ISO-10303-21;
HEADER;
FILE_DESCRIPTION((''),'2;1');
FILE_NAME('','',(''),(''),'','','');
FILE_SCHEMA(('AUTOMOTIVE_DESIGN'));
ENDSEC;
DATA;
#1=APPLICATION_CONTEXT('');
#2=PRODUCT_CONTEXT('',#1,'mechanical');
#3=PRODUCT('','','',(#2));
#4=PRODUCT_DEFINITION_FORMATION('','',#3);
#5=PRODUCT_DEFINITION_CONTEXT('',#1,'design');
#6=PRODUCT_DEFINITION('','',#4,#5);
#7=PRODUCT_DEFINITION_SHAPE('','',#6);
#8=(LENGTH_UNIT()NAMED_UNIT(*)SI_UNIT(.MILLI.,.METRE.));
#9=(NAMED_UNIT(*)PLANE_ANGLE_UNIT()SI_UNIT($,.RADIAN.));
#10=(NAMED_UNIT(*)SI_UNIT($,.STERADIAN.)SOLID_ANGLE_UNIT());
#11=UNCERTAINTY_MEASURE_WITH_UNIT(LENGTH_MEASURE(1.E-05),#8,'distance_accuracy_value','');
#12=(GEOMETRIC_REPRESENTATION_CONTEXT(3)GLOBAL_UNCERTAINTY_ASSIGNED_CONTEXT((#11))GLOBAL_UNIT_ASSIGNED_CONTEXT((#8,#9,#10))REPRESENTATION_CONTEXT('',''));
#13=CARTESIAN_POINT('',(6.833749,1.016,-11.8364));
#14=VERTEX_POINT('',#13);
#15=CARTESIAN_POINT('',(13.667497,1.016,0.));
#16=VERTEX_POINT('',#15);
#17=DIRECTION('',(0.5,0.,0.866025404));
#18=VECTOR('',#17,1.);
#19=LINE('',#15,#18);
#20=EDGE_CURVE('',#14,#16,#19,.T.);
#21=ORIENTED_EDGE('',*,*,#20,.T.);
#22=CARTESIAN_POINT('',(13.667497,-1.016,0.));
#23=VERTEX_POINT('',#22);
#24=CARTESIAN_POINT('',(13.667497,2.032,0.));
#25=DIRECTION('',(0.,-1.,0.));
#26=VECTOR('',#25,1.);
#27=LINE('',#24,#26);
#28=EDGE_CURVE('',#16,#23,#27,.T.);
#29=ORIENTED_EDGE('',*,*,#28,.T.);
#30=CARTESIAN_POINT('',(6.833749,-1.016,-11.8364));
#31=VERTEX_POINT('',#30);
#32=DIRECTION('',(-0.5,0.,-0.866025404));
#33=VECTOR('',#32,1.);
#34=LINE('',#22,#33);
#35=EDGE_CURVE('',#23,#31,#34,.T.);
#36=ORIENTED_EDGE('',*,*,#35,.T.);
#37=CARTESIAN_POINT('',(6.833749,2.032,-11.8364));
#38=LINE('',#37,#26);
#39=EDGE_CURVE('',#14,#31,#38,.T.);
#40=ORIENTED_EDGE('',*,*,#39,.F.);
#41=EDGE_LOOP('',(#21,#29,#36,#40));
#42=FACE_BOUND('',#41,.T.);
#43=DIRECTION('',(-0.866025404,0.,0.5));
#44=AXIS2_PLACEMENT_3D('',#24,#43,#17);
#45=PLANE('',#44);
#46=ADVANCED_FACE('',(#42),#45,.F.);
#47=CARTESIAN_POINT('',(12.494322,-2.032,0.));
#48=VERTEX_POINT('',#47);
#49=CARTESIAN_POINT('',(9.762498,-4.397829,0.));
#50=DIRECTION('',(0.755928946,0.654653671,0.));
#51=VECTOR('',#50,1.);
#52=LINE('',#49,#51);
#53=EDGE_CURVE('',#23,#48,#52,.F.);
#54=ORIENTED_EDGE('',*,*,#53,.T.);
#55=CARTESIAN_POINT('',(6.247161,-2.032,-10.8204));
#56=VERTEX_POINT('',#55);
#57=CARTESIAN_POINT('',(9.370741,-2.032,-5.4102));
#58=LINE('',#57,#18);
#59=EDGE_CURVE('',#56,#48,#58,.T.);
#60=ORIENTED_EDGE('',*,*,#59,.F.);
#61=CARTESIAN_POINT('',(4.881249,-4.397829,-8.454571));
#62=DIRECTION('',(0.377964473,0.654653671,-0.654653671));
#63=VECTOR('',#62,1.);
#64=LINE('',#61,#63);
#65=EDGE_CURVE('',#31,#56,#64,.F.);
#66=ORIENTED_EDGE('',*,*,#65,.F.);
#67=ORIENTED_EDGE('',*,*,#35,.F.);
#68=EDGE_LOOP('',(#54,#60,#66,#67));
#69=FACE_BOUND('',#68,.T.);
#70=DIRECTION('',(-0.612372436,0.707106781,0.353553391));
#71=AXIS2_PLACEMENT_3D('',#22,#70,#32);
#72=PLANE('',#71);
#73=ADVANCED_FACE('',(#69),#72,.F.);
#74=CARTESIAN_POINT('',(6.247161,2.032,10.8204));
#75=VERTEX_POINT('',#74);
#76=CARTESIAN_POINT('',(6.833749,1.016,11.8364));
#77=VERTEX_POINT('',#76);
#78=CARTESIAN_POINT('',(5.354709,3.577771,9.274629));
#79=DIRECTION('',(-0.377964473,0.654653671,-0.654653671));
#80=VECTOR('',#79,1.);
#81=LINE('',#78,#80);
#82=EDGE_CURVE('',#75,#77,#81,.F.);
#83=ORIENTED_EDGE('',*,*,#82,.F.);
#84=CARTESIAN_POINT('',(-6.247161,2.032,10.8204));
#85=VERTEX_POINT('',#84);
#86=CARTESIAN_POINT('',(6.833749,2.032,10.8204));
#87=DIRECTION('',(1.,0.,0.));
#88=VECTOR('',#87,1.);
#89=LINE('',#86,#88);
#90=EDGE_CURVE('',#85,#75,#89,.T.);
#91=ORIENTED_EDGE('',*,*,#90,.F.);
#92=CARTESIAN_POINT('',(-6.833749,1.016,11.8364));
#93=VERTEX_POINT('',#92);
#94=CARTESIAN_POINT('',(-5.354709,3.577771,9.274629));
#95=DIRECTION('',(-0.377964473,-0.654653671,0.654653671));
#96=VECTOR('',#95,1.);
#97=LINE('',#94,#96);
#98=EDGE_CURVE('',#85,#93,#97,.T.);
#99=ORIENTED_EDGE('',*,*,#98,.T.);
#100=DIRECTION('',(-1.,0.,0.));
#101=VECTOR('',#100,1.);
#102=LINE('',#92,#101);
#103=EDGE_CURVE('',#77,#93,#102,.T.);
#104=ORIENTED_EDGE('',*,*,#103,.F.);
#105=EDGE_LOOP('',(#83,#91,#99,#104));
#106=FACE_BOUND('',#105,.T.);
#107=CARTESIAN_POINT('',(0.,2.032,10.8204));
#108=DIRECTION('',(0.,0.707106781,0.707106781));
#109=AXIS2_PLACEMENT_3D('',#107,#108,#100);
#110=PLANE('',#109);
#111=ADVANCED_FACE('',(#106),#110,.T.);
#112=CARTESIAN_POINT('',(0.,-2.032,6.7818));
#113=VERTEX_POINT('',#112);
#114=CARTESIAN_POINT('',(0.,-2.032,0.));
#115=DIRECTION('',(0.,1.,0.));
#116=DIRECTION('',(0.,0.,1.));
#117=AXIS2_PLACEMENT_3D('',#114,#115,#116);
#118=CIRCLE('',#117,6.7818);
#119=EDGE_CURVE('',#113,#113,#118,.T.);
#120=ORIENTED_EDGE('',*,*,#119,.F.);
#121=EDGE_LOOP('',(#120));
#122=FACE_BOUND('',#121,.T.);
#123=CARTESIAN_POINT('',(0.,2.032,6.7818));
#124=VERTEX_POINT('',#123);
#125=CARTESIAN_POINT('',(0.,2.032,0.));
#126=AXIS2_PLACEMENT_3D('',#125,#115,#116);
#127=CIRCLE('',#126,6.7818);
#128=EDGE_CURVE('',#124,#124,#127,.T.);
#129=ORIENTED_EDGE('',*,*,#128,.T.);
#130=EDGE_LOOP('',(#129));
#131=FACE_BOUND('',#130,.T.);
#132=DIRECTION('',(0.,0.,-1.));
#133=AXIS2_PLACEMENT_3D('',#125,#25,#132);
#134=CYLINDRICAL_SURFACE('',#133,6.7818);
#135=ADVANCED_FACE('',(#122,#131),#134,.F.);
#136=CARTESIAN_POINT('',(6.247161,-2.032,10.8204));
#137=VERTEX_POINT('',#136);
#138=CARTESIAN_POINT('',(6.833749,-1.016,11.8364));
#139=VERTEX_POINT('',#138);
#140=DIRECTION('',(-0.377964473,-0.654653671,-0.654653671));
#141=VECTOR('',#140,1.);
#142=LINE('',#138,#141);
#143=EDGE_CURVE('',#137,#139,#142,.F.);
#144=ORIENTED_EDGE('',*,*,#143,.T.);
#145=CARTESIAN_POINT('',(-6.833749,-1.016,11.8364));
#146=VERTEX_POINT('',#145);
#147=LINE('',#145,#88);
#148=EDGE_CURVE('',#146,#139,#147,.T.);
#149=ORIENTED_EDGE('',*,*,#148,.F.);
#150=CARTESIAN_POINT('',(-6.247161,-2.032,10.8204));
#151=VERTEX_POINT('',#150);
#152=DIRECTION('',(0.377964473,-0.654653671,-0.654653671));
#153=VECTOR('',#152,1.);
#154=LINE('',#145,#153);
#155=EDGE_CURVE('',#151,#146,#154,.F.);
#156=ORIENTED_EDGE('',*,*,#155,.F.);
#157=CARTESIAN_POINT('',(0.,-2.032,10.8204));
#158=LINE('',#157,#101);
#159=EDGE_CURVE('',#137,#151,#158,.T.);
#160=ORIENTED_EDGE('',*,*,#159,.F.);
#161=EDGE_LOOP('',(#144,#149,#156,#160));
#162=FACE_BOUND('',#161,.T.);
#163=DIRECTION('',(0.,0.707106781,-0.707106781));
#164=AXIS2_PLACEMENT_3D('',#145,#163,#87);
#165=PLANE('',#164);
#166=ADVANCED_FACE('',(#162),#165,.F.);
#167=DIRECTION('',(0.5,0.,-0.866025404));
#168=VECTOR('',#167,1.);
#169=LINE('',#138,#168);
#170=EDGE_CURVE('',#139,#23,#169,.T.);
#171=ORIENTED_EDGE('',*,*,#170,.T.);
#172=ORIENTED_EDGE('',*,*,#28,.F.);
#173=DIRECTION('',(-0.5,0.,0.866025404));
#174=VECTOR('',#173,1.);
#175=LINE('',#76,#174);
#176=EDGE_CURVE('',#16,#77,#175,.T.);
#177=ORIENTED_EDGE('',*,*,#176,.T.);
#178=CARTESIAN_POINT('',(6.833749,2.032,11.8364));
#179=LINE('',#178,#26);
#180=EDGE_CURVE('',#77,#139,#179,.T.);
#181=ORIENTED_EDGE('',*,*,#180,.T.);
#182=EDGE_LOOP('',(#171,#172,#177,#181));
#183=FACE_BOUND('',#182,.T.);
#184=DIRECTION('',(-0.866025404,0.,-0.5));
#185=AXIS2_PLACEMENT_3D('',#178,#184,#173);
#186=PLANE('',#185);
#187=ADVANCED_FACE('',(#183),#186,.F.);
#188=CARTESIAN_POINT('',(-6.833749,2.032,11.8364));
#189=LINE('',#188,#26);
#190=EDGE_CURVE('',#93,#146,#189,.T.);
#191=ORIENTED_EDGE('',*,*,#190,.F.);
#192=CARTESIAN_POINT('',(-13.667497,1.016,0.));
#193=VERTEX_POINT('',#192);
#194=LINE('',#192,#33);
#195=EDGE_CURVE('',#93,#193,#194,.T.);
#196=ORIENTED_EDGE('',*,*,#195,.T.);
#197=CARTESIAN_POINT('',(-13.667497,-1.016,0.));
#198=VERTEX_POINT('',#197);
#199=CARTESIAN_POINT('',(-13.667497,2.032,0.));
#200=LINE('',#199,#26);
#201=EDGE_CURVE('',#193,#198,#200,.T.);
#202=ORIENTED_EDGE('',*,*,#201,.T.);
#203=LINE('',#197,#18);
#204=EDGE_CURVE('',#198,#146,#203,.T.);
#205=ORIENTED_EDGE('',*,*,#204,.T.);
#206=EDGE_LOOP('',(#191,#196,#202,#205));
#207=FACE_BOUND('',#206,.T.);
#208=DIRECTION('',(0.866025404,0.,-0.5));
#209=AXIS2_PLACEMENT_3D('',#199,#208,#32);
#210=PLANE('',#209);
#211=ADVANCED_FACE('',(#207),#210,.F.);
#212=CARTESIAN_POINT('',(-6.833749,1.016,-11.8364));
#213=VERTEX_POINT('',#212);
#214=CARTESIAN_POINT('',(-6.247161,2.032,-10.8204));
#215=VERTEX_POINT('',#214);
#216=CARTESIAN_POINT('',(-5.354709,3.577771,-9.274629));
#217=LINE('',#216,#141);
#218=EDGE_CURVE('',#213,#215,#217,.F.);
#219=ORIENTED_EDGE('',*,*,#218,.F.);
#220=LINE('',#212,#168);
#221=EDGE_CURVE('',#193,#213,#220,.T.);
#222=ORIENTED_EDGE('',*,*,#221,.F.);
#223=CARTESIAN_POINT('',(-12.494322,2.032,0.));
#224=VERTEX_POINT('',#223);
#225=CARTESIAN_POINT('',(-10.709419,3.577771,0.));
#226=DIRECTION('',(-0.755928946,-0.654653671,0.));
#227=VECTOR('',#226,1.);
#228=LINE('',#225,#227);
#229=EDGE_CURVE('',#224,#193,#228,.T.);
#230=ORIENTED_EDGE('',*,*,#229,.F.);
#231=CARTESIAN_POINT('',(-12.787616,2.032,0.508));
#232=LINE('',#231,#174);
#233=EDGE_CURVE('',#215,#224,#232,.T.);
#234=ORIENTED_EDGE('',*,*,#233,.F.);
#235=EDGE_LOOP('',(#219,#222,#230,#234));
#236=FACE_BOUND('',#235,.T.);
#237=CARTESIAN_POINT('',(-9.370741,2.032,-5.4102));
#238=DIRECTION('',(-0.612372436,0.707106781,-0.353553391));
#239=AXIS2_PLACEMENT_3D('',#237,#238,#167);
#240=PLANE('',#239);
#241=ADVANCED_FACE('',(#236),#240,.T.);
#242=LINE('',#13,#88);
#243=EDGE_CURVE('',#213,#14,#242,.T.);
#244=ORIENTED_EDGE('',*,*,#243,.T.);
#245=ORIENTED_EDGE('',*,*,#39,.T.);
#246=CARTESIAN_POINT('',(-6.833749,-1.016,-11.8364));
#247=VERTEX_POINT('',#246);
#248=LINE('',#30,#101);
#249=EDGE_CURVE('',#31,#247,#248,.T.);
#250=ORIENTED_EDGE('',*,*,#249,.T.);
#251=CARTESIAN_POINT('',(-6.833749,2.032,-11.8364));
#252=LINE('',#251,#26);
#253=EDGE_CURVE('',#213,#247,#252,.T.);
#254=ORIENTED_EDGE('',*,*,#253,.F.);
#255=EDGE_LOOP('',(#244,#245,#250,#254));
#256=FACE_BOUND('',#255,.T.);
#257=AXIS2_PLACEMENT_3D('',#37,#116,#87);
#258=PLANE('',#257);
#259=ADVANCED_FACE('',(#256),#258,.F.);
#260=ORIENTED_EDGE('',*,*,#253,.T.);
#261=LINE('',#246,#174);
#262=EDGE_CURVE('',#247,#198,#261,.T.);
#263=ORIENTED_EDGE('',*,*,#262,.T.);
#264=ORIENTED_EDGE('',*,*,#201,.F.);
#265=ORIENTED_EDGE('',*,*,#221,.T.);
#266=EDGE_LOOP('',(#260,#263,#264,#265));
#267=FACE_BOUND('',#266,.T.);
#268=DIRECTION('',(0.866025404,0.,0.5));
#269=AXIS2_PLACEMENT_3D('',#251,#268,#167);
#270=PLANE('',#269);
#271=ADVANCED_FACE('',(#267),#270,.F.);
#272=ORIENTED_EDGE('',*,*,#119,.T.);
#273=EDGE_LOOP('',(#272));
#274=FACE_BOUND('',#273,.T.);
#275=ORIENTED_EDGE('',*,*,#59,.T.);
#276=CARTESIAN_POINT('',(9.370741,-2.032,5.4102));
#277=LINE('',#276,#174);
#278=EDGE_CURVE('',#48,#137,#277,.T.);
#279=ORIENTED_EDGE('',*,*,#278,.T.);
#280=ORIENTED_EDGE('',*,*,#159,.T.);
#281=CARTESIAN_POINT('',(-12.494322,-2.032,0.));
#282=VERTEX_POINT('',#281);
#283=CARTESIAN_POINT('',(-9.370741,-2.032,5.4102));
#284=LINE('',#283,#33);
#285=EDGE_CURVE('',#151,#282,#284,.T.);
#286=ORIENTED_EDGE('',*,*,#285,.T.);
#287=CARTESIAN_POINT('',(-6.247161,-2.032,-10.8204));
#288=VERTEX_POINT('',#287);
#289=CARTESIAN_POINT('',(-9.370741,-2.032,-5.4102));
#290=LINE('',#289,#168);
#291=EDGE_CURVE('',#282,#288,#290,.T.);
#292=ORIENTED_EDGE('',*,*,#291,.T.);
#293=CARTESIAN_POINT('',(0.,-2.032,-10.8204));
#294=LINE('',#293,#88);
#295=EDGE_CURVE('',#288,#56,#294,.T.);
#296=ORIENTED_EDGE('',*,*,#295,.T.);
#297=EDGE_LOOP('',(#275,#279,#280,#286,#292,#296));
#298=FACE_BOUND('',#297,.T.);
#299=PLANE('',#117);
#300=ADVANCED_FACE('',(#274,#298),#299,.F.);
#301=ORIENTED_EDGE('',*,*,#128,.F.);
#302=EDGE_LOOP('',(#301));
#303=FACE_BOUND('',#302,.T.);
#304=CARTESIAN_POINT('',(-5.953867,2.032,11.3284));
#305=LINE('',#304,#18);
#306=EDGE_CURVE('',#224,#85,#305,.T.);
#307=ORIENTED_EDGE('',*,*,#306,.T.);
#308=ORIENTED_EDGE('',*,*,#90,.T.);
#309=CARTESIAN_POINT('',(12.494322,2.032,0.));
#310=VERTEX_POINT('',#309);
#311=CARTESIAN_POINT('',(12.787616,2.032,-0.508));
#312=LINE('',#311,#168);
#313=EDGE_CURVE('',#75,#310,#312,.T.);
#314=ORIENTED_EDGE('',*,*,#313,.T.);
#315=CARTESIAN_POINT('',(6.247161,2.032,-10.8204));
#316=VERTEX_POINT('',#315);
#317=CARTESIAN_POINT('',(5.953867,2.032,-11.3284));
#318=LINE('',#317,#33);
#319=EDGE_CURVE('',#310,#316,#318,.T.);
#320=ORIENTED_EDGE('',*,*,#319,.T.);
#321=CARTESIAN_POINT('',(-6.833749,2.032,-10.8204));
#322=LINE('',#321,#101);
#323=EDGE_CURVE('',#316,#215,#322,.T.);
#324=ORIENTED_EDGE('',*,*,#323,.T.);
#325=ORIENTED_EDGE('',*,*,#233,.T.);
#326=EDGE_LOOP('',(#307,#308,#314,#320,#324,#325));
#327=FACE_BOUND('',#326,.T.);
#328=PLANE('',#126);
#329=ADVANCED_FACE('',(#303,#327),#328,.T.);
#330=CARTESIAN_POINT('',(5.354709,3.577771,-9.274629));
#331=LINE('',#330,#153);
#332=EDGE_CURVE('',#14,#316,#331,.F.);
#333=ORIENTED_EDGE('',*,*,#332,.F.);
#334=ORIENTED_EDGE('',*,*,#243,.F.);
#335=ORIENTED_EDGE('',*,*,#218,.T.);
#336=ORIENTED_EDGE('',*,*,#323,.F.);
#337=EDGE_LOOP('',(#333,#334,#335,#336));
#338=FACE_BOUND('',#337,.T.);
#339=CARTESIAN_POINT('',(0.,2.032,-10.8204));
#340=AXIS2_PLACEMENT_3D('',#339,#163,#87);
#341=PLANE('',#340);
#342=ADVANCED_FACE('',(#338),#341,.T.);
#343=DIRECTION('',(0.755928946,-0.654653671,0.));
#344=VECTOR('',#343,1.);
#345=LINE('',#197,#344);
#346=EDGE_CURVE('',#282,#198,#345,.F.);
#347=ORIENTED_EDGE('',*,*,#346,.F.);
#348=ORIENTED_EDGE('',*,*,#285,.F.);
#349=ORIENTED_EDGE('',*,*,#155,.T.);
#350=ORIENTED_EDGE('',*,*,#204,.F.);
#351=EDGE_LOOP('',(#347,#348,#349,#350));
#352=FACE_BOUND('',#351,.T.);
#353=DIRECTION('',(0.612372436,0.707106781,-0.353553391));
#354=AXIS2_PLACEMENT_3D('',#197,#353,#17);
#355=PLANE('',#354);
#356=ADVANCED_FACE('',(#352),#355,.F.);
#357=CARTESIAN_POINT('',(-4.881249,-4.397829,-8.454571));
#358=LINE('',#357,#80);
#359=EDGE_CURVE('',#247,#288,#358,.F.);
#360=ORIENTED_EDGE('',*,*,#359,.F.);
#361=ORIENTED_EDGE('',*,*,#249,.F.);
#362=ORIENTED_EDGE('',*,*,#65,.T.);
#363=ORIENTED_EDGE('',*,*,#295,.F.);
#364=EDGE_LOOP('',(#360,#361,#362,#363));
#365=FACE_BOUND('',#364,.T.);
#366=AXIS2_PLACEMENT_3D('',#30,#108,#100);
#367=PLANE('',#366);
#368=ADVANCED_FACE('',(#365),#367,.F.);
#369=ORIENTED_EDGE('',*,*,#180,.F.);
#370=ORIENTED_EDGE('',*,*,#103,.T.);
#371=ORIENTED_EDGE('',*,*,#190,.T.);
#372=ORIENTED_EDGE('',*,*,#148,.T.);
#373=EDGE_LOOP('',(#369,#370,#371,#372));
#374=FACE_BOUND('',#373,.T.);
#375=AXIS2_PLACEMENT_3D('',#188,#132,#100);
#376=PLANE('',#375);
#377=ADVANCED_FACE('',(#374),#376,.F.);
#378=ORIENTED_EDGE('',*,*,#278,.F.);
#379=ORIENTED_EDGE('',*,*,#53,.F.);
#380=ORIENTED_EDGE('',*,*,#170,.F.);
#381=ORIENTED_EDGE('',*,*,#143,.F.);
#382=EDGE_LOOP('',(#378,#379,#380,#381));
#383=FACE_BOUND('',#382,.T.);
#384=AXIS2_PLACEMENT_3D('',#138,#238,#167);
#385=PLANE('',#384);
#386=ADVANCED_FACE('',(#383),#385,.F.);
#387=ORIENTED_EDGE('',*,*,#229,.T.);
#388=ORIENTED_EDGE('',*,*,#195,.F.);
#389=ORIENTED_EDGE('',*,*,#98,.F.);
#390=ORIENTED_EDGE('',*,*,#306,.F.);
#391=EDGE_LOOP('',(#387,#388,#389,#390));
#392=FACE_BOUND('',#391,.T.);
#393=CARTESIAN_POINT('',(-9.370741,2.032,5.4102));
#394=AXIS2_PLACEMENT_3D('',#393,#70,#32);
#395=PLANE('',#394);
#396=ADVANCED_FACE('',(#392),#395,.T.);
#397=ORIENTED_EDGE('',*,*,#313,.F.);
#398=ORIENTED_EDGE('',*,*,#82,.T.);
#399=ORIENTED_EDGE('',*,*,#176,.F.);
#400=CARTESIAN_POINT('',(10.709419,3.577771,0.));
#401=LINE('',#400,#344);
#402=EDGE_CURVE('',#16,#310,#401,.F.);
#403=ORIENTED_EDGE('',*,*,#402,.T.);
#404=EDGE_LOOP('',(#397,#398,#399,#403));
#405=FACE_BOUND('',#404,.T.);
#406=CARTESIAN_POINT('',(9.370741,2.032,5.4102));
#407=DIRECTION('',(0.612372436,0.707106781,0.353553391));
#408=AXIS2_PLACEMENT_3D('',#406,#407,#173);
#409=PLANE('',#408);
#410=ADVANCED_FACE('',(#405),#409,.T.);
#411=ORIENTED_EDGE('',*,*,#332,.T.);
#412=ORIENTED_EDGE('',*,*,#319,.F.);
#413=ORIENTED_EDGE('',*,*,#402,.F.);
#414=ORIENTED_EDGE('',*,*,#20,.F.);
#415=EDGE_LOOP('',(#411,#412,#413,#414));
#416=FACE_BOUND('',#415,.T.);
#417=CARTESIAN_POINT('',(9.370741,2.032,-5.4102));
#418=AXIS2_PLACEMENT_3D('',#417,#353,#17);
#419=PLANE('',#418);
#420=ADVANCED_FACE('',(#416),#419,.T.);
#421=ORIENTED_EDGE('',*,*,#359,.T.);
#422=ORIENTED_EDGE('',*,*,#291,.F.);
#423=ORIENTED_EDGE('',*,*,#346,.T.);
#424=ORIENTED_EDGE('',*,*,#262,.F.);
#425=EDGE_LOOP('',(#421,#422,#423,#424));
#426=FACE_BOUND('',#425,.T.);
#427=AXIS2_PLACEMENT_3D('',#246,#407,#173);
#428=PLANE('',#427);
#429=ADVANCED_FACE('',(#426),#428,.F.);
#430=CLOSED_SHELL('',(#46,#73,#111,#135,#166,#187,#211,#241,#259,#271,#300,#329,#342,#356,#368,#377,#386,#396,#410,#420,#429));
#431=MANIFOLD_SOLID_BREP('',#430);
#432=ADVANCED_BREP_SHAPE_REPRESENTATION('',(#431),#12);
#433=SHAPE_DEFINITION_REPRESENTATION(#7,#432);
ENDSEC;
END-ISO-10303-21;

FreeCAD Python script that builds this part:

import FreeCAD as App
import Part
import Sketcher
from FreeCAD import Vector
Q = App.Units.Quantity


def edges_at(feature, points):
    """Names of the edges that pass closest to the given points."""
    edges = feature.Shape.Edges
    near = lambda p: min(range(len(edges)), key=lambda i: edges[i].distToShape(Part.Vertex(*p))[0])
    return sorted({f"Edge{near(p) + 1}" for p in points})

doc = App.newDocument("Part")
body = doc.addObject("PartDesign::Body", "Body")

# Sketch on XZ plane
sketch1 = body.newObject("Sketcher::SketchObject", "Sketch")
sketch1.AttachmentSupport = (doc.getObject("XZ_Plane"), [""])
sketch1.MapMode = "FlatFace"
sketch1.addGeometry([
    Part.LineSegment(Vector(7, -12, 0), Vector(-7, -12, 0)),  # 0
    Part.LineSegment(Vector(-7, -12, 0), Vector(-14, 0, 0)),  # 1
    Part.LineSegment(Vector(-14, 0, 0), Vector(-7, 12, 0)),  # 2
    Part.LineSegment(Vector(-7, 12, 0), Vector(7, 12, 0)),  # 3
    Part.LineSegment(Vector(7, 12, 0), Vector(14, 0, 0)),  # 4
    Part.LineSegment(Vector(14, 0, 0), Vector(7, -12, 0)),  # 5
    Part.Circle(Vector(0, 0, 0), Vector(0, 0, 1), 7),  # 6
], False)
sketch1.addConstraint([
    Sketcher.Constraint("Coincident", 0, 2, 1, 1),
    Sketcher.Constraint("Coincident", 1, 2, 2, 1),
    Sketcher.Constraint("Coincident", 2, 2, 3, 1),
    Sketcher.Constraint("Coincident", 3, 2, 4, 1),
    Sketcher.Constraint("Coincident", 4, 2, 5, 1),
    Sketcher.Constraint("Coincident", 5, 2, 0, 1),
    Sketcher.Constraint("Horizontal", 0),
    Sketcher.Constraint("Horizontal", 3),
    Sketcher.Constraint("Coincident", 6, 3, -1, 1),
    Sketcher.Constraint("Symmetric", 0, 2, 3, 2, -1, 1),
    Sketcher.Constraint("Symmetric", 1, 2, 4, 2, -1, 1),
    Sketcher.Constraint("PointOnObject", 1, 2, -1),
    Sketcher.Constraint("Parallel", 2, 5),
    Sketcher.Constraint("Vertical", 0, 2, 2, 2),
    Sketcher.Constraint("Diameter", 6, Q("0.534 in")),
    Sketcher.Constraint("Angle", 1, Q("120 deg")),
    Sketcher.Constraint("DistanceY", 0, 2, -1, 1, Q("0.466 in")),
    Sketcher.Constraint("DistanceX", 0, 2, 0, 1, 13.667497),
])
pad1 = body.newObject("PartDesign::Pad", "Pad")
pad1.Profile = sketch1
pad1.Length = Q("0.16 in")
pad1.Midplane = True
doc.recompute()

chamfer = body.newObject("PartDesign::Chamfer", "Chamfer")
chamfer.Base = (pad1, edges_at(pad1, [
    (-10.251, 2.032, -5.918),
    (-10.251, 2.032, 5.918),
    (0, 2.032, 11.836),
    (10.251, 2.032, 5.918),
    (10.251, 2.032, -5.918),
    (10.251, -2.032, 5.918),
    (0, -2.032, 11.836),
    (-10.251, -2.032, 5.918),
    (-10.251, -2.032, -5.918),
    (0, -2.032, -11.836),
    (10.251, -2.032, -5.918),
    (0, 2.032, -11.836),
]))
chamfer.Size = Q("0.04 in")

doc.recompute()
